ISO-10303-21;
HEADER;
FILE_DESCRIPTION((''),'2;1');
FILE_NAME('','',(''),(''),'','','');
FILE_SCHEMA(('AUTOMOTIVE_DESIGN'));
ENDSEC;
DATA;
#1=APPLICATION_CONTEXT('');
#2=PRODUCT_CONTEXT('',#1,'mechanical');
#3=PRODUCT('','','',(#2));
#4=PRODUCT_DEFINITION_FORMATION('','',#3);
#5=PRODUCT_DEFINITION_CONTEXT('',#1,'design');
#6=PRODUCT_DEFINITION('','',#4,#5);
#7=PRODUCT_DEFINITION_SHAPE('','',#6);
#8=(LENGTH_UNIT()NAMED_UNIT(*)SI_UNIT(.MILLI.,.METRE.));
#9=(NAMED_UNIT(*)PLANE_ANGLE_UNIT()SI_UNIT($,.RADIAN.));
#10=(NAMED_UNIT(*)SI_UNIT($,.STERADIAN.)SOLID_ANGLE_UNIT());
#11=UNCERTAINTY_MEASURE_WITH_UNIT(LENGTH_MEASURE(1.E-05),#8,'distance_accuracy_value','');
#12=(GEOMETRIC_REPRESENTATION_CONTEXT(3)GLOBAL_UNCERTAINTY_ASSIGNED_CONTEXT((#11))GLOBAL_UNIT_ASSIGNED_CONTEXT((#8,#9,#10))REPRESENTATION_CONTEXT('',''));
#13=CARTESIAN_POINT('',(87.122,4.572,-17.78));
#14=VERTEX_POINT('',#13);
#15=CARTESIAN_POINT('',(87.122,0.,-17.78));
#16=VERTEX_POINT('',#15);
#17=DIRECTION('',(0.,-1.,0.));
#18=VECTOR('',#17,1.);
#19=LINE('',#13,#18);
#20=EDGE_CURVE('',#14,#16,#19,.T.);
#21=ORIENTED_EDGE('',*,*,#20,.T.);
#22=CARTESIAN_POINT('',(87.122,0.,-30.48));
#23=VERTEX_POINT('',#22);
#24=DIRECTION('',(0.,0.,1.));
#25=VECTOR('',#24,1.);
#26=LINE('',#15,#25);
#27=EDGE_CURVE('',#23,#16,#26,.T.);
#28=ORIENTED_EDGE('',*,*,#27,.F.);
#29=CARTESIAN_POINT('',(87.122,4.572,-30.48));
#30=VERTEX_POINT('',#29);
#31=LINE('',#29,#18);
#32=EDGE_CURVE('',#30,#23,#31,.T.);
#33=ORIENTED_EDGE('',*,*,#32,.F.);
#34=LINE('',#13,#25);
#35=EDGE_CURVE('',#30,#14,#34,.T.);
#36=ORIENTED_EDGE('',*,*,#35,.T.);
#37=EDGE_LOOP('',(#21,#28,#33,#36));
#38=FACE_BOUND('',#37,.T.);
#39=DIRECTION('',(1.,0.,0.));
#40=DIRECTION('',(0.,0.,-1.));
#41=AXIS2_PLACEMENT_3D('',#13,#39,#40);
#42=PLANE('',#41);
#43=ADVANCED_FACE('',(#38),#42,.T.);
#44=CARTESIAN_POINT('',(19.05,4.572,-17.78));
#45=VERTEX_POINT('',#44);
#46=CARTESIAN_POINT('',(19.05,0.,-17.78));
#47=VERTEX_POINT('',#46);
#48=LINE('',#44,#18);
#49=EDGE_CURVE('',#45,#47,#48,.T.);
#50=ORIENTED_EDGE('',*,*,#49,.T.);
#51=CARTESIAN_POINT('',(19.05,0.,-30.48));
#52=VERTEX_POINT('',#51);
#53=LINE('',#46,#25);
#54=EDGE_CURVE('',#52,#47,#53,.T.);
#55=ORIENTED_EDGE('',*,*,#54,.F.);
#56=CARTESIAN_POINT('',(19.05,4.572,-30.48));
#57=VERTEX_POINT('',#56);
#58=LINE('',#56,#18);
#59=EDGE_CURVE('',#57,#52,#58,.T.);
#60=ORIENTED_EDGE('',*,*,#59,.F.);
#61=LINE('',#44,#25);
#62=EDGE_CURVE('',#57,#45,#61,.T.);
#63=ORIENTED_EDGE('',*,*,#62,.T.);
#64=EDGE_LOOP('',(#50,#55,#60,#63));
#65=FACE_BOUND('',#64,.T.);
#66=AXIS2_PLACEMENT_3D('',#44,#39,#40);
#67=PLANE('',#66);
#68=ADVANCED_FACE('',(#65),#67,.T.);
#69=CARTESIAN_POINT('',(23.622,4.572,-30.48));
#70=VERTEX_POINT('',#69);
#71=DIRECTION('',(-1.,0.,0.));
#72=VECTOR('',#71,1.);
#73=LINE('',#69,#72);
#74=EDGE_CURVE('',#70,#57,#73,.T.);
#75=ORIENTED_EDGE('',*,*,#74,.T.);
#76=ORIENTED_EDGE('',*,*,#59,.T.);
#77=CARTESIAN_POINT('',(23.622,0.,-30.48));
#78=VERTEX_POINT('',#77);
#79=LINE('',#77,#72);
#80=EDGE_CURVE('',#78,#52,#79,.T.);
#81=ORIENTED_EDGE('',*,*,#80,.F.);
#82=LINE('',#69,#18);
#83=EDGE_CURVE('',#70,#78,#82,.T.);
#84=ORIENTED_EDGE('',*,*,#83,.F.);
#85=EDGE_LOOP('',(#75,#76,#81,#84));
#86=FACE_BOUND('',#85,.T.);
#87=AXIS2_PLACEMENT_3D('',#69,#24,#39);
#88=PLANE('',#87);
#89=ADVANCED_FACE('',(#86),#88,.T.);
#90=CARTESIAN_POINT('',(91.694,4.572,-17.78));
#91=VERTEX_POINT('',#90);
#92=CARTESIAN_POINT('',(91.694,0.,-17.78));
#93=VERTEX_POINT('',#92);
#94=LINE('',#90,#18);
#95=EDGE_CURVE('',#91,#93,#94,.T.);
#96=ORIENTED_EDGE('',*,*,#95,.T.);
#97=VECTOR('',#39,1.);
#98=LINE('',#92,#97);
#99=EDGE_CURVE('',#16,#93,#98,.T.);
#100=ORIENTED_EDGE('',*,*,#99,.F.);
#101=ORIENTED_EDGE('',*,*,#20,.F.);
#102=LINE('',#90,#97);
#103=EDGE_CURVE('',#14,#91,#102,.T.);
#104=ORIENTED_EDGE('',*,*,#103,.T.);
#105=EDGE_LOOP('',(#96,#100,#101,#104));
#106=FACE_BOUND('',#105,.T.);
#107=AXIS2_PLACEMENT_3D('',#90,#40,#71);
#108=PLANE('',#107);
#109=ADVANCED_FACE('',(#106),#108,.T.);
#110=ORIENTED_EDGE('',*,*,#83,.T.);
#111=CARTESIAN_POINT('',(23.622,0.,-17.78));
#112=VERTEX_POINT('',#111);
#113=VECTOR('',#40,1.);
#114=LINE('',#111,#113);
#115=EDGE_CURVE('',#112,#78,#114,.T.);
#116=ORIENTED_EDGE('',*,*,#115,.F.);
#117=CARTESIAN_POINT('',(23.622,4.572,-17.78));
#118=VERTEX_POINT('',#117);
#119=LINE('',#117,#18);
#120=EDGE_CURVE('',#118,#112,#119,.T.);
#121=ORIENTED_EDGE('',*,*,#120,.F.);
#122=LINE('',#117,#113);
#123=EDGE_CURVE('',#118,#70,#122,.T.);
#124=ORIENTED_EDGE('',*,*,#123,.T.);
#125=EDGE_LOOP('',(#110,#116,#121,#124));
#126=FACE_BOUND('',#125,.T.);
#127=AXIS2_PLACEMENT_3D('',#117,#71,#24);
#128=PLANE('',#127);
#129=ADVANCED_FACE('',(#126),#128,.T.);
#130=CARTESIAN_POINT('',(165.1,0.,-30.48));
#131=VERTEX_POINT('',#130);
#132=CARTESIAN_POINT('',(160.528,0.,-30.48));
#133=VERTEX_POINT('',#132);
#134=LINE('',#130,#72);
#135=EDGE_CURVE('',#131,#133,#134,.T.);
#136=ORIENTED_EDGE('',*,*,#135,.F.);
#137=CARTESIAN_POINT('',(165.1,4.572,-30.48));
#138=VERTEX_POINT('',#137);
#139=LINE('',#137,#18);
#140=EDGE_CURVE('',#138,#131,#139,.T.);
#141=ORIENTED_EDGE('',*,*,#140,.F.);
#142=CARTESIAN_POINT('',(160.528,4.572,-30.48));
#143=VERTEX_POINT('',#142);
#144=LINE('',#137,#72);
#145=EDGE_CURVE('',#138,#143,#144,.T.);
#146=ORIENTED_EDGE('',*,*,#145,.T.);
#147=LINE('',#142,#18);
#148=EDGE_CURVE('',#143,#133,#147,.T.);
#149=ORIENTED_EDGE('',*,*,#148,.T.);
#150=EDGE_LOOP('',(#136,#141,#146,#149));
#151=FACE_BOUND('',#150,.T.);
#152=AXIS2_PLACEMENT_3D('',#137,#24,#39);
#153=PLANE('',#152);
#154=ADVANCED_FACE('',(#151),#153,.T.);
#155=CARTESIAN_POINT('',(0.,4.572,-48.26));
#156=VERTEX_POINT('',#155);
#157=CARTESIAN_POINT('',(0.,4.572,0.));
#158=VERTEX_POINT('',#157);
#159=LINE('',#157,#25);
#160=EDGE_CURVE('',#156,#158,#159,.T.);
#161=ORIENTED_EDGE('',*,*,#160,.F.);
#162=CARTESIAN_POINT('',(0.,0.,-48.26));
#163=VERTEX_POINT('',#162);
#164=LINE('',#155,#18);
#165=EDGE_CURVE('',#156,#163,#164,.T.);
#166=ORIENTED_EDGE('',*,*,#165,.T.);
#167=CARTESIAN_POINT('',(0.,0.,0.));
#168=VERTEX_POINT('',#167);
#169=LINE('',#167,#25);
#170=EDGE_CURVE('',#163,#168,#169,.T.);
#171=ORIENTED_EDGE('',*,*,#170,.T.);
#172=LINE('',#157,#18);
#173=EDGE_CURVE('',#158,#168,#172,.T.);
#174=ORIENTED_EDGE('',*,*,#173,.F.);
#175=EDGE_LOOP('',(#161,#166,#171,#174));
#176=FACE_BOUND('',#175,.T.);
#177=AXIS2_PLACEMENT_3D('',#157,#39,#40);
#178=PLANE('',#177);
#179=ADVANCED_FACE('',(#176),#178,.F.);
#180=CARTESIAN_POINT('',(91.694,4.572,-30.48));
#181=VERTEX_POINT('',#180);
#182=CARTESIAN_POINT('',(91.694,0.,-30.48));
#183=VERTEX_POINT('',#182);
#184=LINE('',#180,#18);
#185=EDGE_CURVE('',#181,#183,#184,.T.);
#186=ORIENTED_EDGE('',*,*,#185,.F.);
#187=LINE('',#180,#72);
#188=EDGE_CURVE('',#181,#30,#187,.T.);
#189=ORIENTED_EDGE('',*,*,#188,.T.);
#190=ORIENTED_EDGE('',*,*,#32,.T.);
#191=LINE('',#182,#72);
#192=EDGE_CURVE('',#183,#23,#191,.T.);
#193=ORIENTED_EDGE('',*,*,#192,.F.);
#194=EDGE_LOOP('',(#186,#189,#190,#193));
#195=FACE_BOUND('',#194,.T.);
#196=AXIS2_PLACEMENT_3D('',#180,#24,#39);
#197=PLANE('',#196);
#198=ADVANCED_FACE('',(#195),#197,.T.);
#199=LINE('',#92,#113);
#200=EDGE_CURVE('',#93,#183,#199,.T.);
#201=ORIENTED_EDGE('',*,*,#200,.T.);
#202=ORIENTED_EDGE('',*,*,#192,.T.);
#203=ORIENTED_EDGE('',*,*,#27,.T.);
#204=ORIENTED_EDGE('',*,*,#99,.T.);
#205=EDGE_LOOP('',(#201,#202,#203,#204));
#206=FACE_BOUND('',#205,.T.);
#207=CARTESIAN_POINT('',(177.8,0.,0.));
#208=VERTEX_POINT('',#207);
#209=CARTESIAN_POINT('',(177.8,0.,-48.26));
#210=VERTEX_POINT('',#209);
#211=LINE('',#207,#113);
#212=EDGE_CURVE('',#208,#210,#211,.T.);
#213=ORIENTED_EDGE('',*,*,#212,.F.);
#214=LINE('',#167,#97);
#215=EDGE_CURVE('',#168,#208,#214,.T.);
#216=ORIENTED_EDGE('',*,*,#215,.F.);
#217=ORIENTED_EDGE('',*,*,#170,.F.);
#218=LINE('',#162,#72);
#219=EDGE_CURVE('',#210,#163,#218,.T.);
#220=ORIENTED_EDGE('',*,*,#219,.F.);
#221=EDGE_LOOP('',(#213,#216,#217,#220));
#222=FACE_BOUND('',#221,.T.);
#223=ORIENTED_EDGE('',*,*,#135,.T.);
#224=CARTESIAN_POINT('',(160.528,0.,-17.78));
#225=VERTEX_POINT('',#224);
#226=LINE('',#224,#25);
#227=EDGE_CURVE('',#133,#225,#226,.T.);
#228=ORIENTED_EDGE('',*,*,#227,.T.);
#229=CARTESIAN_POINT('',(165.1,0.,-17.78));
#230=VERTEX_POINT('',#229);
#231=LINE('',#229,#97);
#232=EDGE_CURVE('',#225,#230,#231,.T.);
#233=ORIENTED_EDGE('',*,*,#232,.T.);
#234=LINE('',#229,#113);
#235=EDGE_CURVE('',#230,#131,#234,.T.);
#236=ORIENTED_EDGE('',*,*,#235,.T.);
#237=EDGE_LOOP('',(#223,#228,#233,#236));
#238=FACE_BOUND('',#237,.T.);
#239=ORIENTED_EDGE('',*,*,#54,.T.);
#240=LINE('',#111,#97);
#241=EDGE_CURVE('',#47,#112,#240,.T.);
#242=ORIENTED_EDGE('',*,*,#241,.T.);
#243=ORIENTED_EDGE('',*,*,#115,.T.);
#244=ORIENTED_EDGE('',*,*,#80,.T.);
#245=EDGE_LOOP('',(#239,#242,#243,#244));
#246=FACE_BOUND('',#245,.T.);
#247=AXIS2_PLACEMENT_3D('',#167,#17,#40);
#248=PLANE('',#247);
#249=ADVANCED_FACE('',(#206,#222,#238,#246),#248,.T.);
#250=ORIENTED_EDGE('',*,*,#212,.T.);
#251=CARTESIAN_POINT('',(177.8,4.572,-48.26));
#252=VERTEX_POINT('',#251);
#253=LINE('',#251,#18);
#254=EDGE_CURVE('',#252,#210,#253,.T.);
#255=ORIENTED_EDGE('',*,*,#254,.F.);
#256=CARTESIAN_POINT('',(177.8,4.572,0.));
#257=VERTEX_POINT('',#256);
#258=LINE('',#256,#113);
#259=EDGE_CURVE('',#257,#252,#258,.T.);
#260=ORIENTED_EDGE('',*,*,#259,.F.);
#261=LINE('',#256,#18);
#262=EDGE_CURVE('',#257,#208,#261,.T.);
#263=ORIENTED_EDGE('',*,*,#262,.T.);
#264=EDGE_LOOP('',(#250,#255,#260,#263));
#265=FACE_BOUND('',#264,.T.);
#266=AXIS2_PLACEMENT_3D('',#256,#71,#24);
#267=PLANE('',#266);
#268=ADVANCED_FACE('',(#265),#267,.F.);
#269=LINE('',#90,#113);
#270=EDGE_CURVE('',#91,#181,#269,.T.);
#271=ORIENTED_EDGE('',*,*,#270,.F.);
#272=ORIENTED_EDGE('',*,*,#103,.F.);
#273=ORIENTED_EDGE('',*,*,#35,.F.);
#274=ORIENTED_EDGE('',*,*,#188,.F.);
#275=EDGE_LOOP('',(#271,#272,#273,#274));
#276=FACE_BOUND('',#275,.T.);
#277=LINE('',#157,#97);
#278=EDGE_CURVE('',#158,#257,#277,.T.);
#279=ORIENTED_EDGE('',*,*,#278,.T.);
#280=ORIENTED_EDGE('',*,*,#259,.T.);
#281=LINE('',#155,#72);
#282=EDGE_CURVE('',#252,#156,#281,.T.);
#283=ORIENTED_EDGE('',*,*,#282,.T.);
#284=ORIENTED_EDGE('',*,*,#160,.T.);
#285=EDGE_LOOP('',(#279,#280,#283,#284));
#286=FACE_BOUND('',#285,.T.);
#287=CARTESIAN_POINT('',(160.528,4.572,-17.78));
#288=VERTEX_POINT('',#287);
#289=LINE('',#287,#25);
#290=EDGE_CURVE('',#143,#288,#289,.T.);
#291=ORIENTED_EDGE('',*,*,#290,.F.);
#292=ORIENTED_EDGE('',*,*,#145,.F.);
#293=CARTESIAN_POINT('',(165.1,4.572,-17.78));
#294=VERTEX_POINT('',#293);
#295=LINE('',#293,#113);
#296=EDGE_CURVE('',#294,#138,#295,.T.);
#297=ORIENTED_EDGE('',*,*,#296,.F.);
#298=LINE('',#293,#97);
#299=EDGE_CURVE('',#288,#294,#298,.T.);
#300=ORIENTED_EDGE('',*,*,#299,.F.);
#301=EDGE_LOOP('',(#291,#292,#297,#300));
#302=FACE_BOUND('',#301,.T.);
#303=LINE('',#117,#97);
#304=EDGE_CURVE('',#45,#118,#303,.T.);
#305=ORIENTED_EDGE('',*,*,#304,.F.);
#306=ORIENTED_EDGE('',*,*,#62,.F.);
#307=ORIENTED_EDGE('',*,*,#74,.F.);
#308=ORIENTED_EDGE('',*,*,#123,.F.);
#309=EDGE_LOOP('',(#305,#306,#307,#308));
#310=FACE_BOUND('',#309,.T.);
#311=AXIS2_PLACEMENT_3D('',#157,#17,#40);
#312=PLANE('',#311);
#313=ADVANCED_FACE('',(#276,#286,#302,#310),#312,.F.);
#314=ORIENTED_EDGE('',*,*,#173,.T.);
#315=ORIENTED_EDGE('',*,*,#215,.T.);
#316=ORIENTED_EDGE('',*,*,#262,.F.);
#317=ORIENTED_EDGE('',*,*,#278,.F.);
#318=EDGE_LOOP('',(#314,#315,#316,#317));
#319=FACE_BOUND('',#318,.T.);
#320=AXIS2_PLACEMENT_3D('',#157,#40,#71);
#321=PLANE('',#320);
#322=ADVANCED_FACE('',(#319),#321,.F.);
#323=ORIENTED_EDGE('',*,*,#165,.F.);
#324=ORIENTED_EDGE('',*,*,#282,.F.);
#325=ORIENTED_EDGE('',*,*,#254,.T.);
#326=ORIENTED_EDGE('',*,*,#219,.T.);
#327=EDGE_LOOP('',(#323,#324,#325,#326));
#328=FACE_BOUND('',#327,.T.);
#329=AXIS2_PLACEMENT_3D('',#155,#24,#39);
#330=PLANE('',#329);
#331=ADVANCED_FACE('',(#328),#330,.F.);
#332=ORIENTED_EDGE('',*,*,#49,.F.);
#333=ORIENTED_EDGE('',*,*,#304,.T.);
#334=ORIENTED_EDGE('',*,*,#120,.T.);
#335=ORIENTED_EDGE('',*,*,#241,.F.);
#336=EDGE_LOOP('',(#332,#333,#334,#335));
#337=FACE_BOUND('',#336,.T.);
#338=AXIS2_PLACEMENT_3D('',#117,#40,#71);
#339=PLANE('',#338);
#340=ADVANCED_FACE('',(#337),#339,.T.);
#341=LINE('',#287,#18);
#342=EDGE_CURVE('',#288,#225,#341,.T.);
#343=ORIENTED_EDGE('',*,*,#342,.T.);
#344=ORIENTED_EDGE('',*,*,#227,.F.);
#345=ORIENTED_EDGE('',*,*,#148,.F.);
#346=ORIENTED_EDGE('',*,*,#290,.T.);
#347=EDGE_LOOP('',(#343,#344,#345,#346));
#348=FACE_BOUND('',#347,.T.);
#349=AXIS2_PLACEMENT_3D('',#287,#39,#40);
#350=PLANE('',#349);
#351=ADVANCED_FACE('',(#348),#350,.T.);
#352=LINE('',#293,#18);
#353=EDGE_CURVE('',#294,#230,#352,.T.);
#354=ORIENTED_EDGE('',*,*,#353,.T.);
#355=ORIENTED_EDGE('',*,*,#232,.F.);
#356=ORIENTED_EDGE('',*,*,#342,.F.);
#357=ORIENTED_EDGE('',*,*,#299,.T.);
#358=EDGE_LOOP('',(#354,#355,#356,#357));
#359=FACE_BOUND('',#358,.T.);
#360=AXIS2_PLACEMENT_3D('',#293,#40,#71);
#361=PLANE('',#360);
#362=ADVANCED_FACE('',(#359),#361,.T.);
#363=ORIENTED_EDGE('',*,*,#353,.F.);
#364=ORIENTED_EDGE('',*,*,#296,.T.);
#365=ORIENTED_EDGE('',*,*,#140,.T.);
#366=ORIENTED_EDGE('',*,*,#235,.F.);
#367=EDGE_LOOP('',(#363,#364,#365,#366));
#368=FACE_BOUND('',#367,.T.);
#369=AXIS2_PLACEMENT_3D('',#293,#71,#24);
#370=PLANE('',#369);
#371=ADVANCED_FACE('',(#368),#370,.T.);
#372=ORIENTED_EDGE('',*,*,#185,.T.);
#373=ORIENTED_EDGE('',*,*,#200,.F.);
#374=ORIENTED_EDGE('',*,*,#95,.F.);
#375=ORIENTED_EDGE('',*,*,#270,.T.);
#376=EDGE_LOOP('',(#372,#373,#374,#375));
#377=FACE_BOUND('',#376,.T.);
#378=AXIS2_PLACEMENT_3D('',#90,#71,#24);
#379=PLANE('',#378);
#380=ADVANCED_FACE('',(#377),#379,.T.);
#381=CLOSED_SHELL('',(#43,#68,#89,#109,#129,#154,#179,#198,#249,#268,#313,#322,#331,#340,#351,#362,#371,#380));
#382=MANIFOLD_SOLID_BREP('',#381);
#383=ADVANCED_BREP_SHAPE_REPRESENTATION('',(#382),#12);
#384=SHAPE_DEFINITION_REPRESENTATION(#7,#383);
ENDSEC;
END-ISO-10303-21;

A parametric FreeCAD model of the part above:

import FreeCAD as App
import Part
import Sketcher

V = App.Vector
Q = App.Units.Quantity

doc = App.newDocument("Part")
body = doc.addObject("PartDesign::Body", "Body")

sketch1 = body.newObject("Sketcher::SketchObject", "Sketch")
sketch1.AttachmentSupport = (doc.getObject("XZ_Plane"), [""])
sketch1.MapMode = "FlatFace"
sketch1.addGeometry([
    Part.LineSegment(V(0, -48.3, 0), V(0, 0, 0)),
    Part.LineSegment(V(0, 0, 0), V(177.8, 0, 0)),
    Part.LineSegment(V(177.8, 0, 0), V(177.8, -48.3, 0)),
    Part.LineSegment(V(177.8, -48.3, 0), V(0, -48.3, 0)),
    Part.LineSegment(V(23.6, -17.8, 0), V(19.1, -17.8, 0)),
    Part.LineSegment(V(19.1, -17.8, 0), V(19.1, -30.5, 0)),
    Part.LineSegment(V(19.1, -30.5, 0), V(23.6, -30.5, 0)),
    Part.LineSegment(V(23.6, -30.5, 0), V(23.6, -17.8, 0)),
    Part.LineSegment(V(91.7, -17.8, 0), V(87.1, -17.8, 0)),
    Part.LineSegment(V(87.1, -17.8, 0), V(87.1, -30.5, 0)),
    Part.LineSegment(V(87.1, -30.5, 0), V(91.7, -30.5, 0)),
    Part.LineSegment(V(91.7, -30.5, 0), V(91.7, -17.8, 0)),
    Part.LineSegment(V(165.1, -17.8, 0), V(160.5, -17.8, 0)),
    Part.LineSegment(V(160.5, -17.8, 0), V(160.5, -30.5, 0)),
    Part.LineSegment(V(160.5, -30.5, 0), V(165.1, -30.5, 0)),
    Part.LineSegment(V(165.1, -30.5, 0), V(165.1, -17.8, 0)),
], False)
sketch1.addConstraint([
    Sketcher.Constraint("Coincident", 0, 2, 1, 1),
    Sketcher.Constraint("Coincident", 1, 2, 2, 1),
    Sketcher.Constraint("Coincident", 2, 2, 3, 1),
    Sketcher.Constraint("Coincident", 3, 2, 0, 1),
    Sketcher.Constraint("Coincident", 4, 2, 5, 1),
    Sketcher.Constraint("Coincident", 5, 2, 6, 1),
    Sketcher.Constraint("Coincident", 6, 2, 7, 1),
    Sketcher.Constraint("Coincident", 7, 2, 4, 1),
    Sketcher.Constraint("Coincident", 8, 2, 9, 1),
    Sketcher.Constraint("Coincident", 9, 2, 10, 1),
    Sketcher.Constraint("Coincident", 10, 2, 11, 1),
    Sketcher.Constraint("Coincident", 11, 2, 8, 1),
    Sketcher.Constraint("Coincident", 12, 2, 13, 1),
    Sketcher.Constraint("Coincident", 13, 2, 14, 1),
    Sketcher.Constraint("Coincident", 14, 2, 15, 1),
    Sketcher.Constraint("Coincident", 15, 2, 12, 1),
    Sketcher.Constraint("Vertical", 0),
    Sketcher.Constraint("Horizontal", 1),
    Sketcher.Constraint("Vertical", 2),
    Sketcher.Constraint("Horizontal", 3),
    Sketcher.Constraint("Horizontal", 4),
    Sketcher.Constraint("Vertical", 5),
    Sketcher.Constraint("Horizontal", 6),
    Sketcher.Constraint("Vertical", 7),
    Sketcher.Constraint("Horizontal", 8),
    Sketcher.Constraint("Vertical", 9),
    Sketcher.Constraint("Horizontal", 10),
    Sketcher.Constraint("Vertical", 11),
    Sketcher.Constraint("Horizontal", 12),
    Sketcher.Constraint("Vertical", 13),
    Sketcher.Constraint("Horizontal", 14),
    Sketcher.Constraint("Vertical", 15),
    Sketcher.Constraint("Coincident", 0, 2, -1, 1),
    Sketcher.Constraint("Horizontal", 7, 2, 8, 2),
    Sketcher.Constraint("Horizontal", 6, 2, 9, 2),
    Sketcher.Constraint("Horizontal", 11, 2, 12, 2),
    Sketcher.Constraint("Horizontal", 10, 2, 13, 2),
    Sketcher.Constraint("Equal", 6, 8),
    Sketcher.Constraint("Equal", 10, 12),
    Sketcher.Constraint("DistanceX", 1, 1, 1, 2, Q("7 in")),
    Sketcher.Constraint("DistanceY", 0, 1, 0, 2, Q("1.9 in")),
    Sketcher.Constraint("DistanceY", 5, 2, 5, 1, Q("0.5 in")),
    Sketcher.Constraint("DistanceX", 4, 2, 4, 1, Q("0.18 in")),
    Sketcher.Constraint("DistanceY", 4, 2, -1, 1, Q("0.7 in")),
    Sketcher.Constraint("DistanceX", -1, 1, 14, 2, Q("6.5 in")),
    Sketcher.Constraint("DistanceX", 7, 2, 8, 2, Q("2.5 in")),
    Sketcher.Constraint("DistanceX", -1, 1, 4, 2, Q("0.75 in")),
])
pad1 = body.newObject("PartDesign::Pad", "Pad")
pad1.Profile = sketch1
pad1.Length = Q("0.18 in")
pad1.Reversed = True

doc.recompute()
